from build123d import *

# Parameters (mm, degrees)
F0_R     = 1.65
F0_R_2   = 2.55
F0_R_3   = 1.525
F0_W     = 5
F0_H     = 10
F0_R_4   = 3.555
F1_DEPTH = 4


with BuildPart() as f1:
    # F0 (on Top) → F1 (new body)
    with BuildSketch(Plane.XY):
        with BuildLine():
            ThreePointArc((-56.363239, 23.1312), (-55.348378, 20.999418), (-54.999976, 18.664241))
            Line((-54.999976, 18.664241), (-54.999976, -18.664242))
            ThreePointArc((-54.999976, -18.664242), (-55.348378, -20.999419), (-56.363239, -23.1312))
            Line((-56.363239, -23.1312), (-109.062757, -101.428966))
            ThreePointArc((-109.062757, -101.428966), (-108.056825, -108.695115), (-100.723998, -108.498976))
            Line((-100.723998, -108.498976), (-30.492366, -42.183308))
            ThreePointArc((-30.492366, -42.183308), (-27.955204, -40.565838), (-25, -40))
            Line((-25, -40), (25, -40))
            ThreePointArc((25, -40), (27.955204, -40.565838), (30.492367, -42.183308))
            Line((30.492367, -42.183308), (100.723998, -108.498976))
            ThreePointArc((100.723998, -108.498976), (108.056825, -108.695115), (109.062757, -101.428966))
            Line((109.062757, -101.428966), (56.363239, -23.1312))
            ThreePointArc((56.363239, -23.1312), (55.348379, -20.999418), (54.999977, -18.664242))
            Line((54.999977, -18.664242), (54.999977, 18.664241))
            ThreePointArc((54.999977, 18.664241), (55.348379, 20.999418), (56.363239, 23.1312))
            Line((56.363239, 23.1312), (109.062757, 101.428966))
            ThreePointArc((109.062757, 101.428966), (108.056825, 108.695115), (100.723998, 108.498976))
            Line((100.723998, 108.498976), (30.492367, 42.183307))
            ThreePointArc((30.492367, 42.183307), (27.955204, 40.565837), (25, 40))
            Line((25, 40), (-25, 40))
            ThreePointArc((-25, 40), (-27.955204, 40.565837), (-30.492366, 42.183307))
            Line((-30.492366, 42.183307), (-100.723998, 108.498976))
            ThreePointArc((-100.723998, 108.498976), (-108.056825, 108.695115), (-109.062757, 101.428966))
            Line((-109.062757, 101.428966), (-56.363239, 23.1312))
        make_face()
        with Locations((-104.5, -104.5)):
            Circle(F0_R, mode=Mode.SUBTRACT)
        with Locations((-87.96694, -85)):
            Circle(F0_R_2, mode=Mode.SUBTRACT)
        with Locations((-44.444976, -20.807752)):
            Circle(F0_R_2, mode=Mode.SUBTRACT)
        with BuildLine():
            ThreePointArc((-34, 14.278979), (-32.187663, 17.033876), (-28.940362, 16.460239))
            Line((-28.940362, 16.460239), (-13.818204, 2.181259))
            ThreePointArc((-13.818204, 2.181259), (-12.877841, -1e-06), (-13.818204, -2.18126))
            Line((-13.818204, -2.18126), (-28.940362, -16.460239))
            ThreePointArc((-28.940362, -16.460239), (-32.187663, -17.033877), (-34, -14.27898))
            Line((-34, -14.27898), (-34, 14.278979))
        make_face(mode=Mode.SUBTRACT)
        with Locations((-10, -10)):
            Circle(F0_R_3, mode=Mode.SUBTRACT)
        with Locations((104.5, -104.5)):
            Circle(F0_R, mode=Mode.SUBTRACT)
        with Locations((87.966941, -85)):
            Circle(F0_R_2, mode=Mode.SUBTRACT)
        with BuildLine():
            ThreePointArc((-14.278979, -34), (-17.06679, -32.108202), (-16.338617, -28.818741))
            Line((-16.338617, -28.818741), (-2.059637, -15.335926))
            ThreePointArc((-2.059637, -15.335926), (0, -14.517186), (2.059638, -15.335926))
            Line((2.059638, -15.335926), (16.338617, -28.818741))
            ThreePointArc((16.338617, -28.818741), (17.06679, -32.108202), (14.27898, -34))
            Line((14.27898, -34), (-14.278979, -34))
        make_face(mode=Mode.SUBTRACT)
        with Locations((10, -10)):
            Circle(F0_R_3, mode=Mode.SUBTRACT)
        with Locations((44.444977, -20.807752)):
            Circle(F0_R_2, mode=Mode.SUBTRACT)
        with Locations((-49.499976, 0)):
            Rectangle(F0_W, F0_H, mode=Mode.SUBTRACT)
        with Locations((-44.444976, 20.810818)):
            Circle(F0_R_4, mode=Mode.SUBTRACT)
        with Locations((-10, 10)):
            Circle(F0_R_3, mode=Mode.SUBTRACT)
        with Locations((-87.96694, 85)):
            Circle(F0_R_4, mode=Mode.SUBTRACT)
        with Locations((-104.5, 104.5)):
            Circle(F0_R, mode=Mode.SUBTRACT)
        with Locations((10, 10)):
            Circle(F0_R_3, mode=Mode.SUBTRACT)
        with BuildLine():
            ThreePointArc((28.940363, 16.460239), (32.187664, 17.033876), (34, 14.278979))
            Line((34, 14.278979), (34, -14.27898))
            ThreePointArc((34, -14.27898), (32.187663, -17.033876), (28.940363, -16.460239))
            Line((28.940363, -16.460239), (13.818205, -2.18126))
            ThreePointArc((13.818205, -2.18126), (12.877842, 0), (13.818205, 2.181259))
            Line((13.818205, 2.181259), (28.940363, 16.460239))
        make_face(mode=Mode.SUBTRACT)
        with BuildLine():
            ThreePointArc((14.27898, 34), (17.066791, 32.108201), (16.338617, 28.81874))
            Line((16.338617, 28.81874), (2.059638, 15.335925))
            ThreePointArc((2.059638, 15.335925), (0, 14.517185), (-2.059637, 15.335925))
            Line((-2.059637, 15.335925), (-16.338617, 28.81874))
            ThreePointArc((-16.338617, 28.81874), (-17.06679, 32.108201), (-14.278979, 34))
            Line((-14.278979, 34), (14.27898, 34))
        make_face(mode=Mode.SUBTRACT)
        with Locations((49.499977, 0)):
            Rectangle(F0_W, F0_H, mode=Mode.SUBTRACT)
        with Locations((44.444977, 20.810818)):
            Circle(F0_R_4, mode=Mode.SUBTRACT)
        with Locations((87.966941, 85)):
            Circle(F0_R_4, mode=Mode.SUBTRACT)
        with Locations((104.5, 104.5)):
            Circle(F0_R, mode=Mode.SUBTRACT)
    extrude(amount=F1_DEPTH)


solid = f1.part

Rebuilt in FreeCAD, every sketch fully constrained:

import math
import FreeCAD as App
import Part
import Sketcher
from FreeCAD import Vector
Q = App.Units.Quantity

doc = App.newDocument("Part")
body = doc.addObject("PartDesign::Body", "Body")

# Sketch on XY plane
sketch1 = body.newObject("Sketcher::SketchObject", "Sketch")
sketch1.AttachmentSupport = (doc.getObject("XY_Plane"), [""])
sketch1.MapMode = "FlatFace"
sketch1.addGeometry(Part.ArcOfCircle(Part.Circle(Vector(-62.999972, 18.664242, 0), Vector(0, 0, 1), 7.999996), math.radians(-0.00001), math.radians(33.943147)), False)
sketch1.addGeometry(Part.LineSegment(Vector(-54.999976, 18.664241, 0), Vector(-54.999976, -18.664242, 0)), False)
sketch1.addGeometry(Part.ArcOfCircle(Part.Circle(Vector(-62.999965, -18.664244, 0), Vector(0, 0, 1), 7.999989), math.radians(-33.943161), math.radians(0.000017)), False)
sketch1.addGeometry(Part.LineSegment(Vector(-56.363239, -23.1312, 0), Vector(-109.062757, -101.428966, 0)), False)
sketch1.addGeometry(Part.ArcOfCircle(Part.Circle(Vector(-104.5, -104.499999, 0), Vector(0, 0, 1), 5.5), math.radians(146.056873), math.radians(313.357291)), False)
sketch1.addGeometry(Part.LineSegment(Vector(-100.723998, -108.498976, 0), Vector(-30.492366, -42.183308, 0)), False)
sketch1.addGeometry(Part.ArcOfCircle(Part.Circle(Vector(-24.999999, -47.999999, 0), Vector(0, 0, 1), 7.999999), math.radians(90.000005), math.radians(133.357304)), False)
sketch1.addGeometry(Part.LineSegment(Vector(-25, -40, 0), Vector(25, -40, 0)), False)
sketch1.addGeometry(Part.ArcOfCircle(Part.Circle(Vector(24.999998, -48.000004, 0), Vector(0, 0, 1), 8.000004), math.radians(46.64271), math.radians(89.999988)), False)
sketch1.addGeometry(Part.LineSegment(Vector(30.492367, -42.183308, 0), Vector(100.723998, -108.498976, 0)), False)
sketch1.addGeometry(Part.ArcOfCircle(Part.Circle(Vector(104.5, -104.499999, 0), Vector(0, 0, 1), 5.5), math.radians(-133.357291), math.radians(33.943127)), False)
sketch1.addGeometry(Part.LineSegment(Vector(109.062757, -101.428966, 0), Vector(56.363239, -23.1312, 0)), False)
sketch1.addGeometry(Part.ArcOfCircle(Part.Circle(Vector(62.999982, -18.664241, 0), Vector(0, 0, 1), 8.000005), math.radians(-179.999993), math.radians(-146.056886)), False)
sketch1.addGeometry(Part.LineSegment(Vector(54.999977, -18.664242, 0), Vector(54.999977, 18.664241, 0)), False)
sketch1.addGeometry(Part.ArcOfCircle(Part.Circle(Vector(62.999982, 18.664241, 0), Vector(0, 0, 1), 8.000005), math.radians(146.056886), math.radians(180)), False)
sketch1.addGeometry(Part.LineSegment(Vector(56.363239, 23.1312, 0), Vector(109.062757, 101.428966, 0)), False)
sketch1.addGeometry(Part.ArcOfCircle(Part.Circle(Vector(104.5, 104.499999, 0), Vector(0, 0, 1), 5.5), math.radians(-33.943127), math.radians(133.357291)), False)
sketch1.addGeometry(Part.LineSegment(Vector(100.723998, 108.498976, 0), Vector(30.492367, 42.183307, 0)), False)
sketch1.addGeometry(Part.ArcOfCircle(Part.Circle(Vector(25.000002, 47.999997, 0), Vector(0, 0, 1), 7.999997), math.radians(-90.000016), math.radians(-46.642701)), False)
sketch1.addGeometry(Part.LineSegment(Vector(25, 40, 0), Vector(-25, 40, 0)), False)
sketch1.addGeometry(Part.ArcOfCircle(Part.Circle(Vector(-25.000003, 47.999992, 0), Vector(0, 0, 1), 7.999992), math.radians(-133.357313), math.radians(-89.999977)), False)
sketch1.addGeometry(Part.LineSegment(Vector(-30.492366, 42.183307, 0), Vector(-100.723998, 108.498976, 0)), False)
sketch1.addGeometry(Part.ArcOfCircle(Part.Circle(Vector(-104.5, 104.499999, 0), Vector(0, 0, 1), 5.5), math.radians(46.642709), math.radians(213.943127)), False)
sketch1.addGeometry(Part.LineSegment(Vector(-109.062757, 101.428966, 0), Vector(-56.363239, 23.1312, 0)), False)
sketch1.addGeometry(Part.Circle(Vector(-104.5, -104.5, 0), Vector(0, 0, 1), 1.65), False)
sketch1.addGeometry(Part.Circle(Vector(-87.96694, -85, 0), Vector(0, 0, 1), 2.55), False)
sketch1.addGeometry(Part.Circle(Vector(-44.444976, -20.807752, 0), Vector(0, 0, 1), 2.55), False)
sketch1.addGeometry(Part.LineSegment(Vector(-34, -14.27898, 0), Vector(-34, 14.278979, 0)), False)
sketch1.addGeometry(Part.ArcOfCircle(Part.Circle(Vector(-31, 14.278979, 0), Vector(0, 0, 1), 3), math.radians(46.642707), math.radians(179.999998)), False)
sketch1.addGeometry(Part.LineSegment(Vector(-28.940362, 16.460239, 0), Vector(-13.818204, 2.181259, 0)), False)
sketch1.addGeometry(Part.ArcOfCircle(Part.Circle(Vector(-15.87784, 0, 0), Vector(0, 0, 1), 2.999999), math.radians(-46.642724), math.radians(46.642724)), False)
sketch1.addGeometry(Part.LineSegment(Vector(-13.818204, -2.18126, 0), Vector(-28.940362, -16.460239, 0)), False)
sketch1.addGeometry(Part.ArcOfCircle(Part.Circle(Vector(-31, -14.27898, 0), Vector(0, 0, 1), 3), math.radians(179.999995), math.radians(313.35732)), False)
sketch1.addGeometry(Part.Circle(Vector(-10, -10, 0), Vector(0, 0, 1), 1.525), False)
sketch1.addGeometry(Part.Circle(Vector(104.5, -104.5, 0), Vector(0, 0, 1), 1.65), False)
sketch1.addGeometry(Part.Circle(Vector(87.966941, -85, 0), Vector(0, 0, 1), 2.55), False)
sketch1.addGeometry(Part.LineSegment(Vector(14.27898, -34, 0), Vector(-14.278979, -34, 0)), False)
sketch1.addGeometry(Part.ArcOfCircle(Part.Circle(Vector(-14.278979, -31, 0), Vector(0, 0, 1), 3), math.radians(133.357304), math.radians(270.000009)), False)
sketch1.addGeometry(Part.LineSegment(Vector(-16.338617, -28.818741, 0), Vector(-2.059637, -15.335926, 0)), False)
sketch1.addGeometry(Part.ArcOfCircle(Part.Circle(Vector(0, -17.517187, 0), Vector(0, 0, 1), 3.000001), math.radians(46.64272), math.radians(133.35728)), False)
sketch1.addGeometry(Part.LineSegment(Vector(2.059638, -15.335926, 0), Vector(16.338617, -28.818741, 0)), False)
sketch1.addGeometry(Part.ArcOfCircle(Part.Circle(Vector(14.278979, -31, 0), Vector(0, 0, 1), 3), math.radians(-89.99999), math.radians(46.642696)), False)
sketch1.addGeometry(Part.Circle(Vector(10, -10, 0), Vector(0, 0, 1), 1.525), False)
sketch1.addGeometry(Part.Circle(Vector(44.444977, -20.807752, 0), Vector(0, 0, 1), 2.55), False)
sketch1.addGeometry(Part.LineSegment(Vector(-46.999976, -5, 0), Vector(-51.999976, -5, 0)), False)
sketch1.addGeometry(Part.LineSegment(Vector(-51.999976, -5, 0), Vector(-51.999976, 5, 0)), False)
sketch1.addGeometry(Part.LineSegment(Vector(-51.999976, 5, 0), Vector(-46.999976, 5, 0)), False)
sketch1.addGeometry(Part.LineSegment(Vector(-46.999976, 5, 0), Vector(-46.999976, -5, 0)), False)
sketch1.addGeometry(Part.Circle(Vector(-44.444976, 20.810818, 0), Vector(0, 0, 1), 3.555), False)
sketch1.addGeometry(Part.Circle(Vector(-10, 10, 0), Vector(0, 0, 1), 1.525), False)
sketch1.addGeometry(Part.Circle(Vector(-87.96694, 85, 0), Vector(0, 0, 1), 3.555), False)
sketch1.addGeometry(Part.Circle(Vector(-104.5, 104.5, 0), Vector(0, 0, 1), 1.65), False)
sketch1.addGeometry(Part.Circle(Vector(10, 10, 0), Vector(0, 0, 1), 1.525), False)
sketch1.addGeometry(Part.LineSegment(Vector(13.818205, 2.181259, 0), Vector(28.940363, 16.460239, 0)), False)
sketch1.addGeometry(Part.ArcOfCircle(Part.Circle(Vector(31, 14.27898, 0), Vector(0, 0, 1), 3), math.radians(-0.000016), math.radians(133.357304)), False)
sketch1.addGeometry(Part.LineSegment(Vector(34, 14.278979, 0), Vector(34, -14.27898, 0)), False)
sketch1.addGeometry(Part.ArcOfCircle(Part.Circle(Vector(31, -14.278979, 0), Vector(0, 0, 1), 3), math.radians(-133.357292), math.radians(-0.000014)), False)
sketch1.addGeometry(Part.LineSegment(Vector(28.940363, -16.460239, 0), Vector(13.818205, -2.18126, 0)), False)
sketch1.addGeometry(Part.ArcOfCircle(Part.Circle(Vector(15.877841, 0, 0), Vector(0, 0, 1), 2.999999), math.radians(133.357276), math.radians(226.642724)), False)
sketch1.addGeometry(Part.LineSegment(Vector(-14.278979, 34, 0), Vector(14.27898, 34, 0)), False)
sketch1.addGeometry(Part.ArcOfCircle(Part.Circle(Vector(14.27898, 31, 0), Vector(0, 0, 1), 3), math.radians(-46.642712), math.radians(89.999999)), False)
sketch1.addGeometry(Part.LineSegment(Vector(16.338617, 28.81874, 0), Vector(2.059638, 15.335925, 0)), False)
sketch1.addGeometry(Part.ArcOfCircle(Part.Circle(Vector(0, 17.517186, 0), Vector(0, 0, 1), 3.000001), math.radians(-133.35728), math.radians(-46.64272)), False)
sketch1.addGeometry(Part.LineSegment(Vector(-2.059637, 15.335925, 0), Vector(-16.338617, 28.81874, 0)), False)
sketch1.addGeometry(Part.ArcOfCircle(Part.Circle(Vector(-14.278979, 30.999999, 0), Vector(0, 0, 1), 3.000001), math.radians(90.000008), math.radians(226.642685)), False)
sketch1.addGeometry(Part.LineSegment(Vector(51.999977, -5, 0), Vector(46.999977, -5, 0)), False)
sketch1.addGeometry(Part.LineSegment(Vector(46.999977, -5, 0), Vector(46.999977, 5, 0)), False)
sketch1.addGeometry(Part.LineSegment(Vector(46.999977, 5, 0), Vector(51.999977, 5, 0)), False)
sketch1.addGeometry(Part.LineSegment(Vector(51.999977, 5, 0), Vector(51.999977, -5, 0)), False)
sketch1.addGeometry(Part.Circle(Vector(44.444977, 20.810818, 0), Vector(0, 0, 1), 3.555), False)
sketch1.addGeometry(Part.Circle(Vector(87.966941, 85, 0), Vector(0, 0, 1), 3.555), False)
sketch1.addGeometry(Part.Circle(Vector(104.5, 104.5, 0), Vector(0, 0, 1), 1.65), False)
sketch1.addConstraint(Sketcher.Constraint("Tangent", 0, 1, 1, 1))
sketch1.addConstraint(Sketcher.Constraint("Tangent", 1, 2, 2, 2))
sketch1.addConstraint(Sketcher.Constraint("Tangent", 2, 1, 3, 1))
sketch1.addConstraint(Sketcher.Constraint("Tangent", 3, 2, 4, 1))
sketch1.addConstraint(Sketcher.Constraint("Tangent", 4, 2, 5, 1))
sketch1.addConstraint(Sketcher.Constraint("Tangent", 5, 2, 6, 2))
sketch1.addConstraint(Sketcher.Constraint("Tangent", 6, 1, 7, 1))
sketch1.addConstraint(Sketcher.Constraint("Tangent", 7, 2, 8, 2))
sketch1.addConstraint(Sketcher.Constraint("Tangent", 8, 1, 9, 1))
sketch1.addConstraint(Sketcher.Constraint("Tangent", 9, 2, 10, 1))
sketch1.addConstraint(Sketcher.Constraint("Tangent", 10, 2, 11, 1))
sketch1.addConstraint(Sketcher.Constraint("Tangent", 11, 2, 12, 2))
sketch1.addConstraint(Sketcher.Constraint("Tangent", 12, 1, 13, 1))
sketch1.addConstraint(Sketcher.Constraint("Tangent", 13, 2, 14, 2))
sketch1.addConstraint(Sketcher.Constraint("Tangent", 14, 1, 15, 1))
sketch1.addConstraint(Sketcher.Constraint("Tangent", 15, 2, 16, 1))
sketch1.addConstraint(Sketcher.Constraint("Tangent", 16, 2, 17, 1))
sketch1.addConstraint(Sketcher.Constraint("Tangent", 17, 2, 18, 2))
sketch1.addConstraint(Sketcher.Constraint("Tangent", 18, 1, 19, 1))
sketch1.addConstraint(Sketcher.Constraint("Tangent", 19, 2, 20, 2))
sketch1.addConstraint(Sketcher.Constraint("Tangent", 20, 1, 21, 1))
sketch1.addConstraint(Sketcher.Constraint("Tangent", 21, 2, 22, 1))
sketch1.addConstraint(Sketcher.Constraint("Tangent", 22, 2, 23, 1))
sketch1.addConstraint(Sketcher.Constraint("Tangent", 23, 2, 0, 2))
sketch1.addConstraint(Sketcher.Constraint("Tangent", 27, 2, 28, 2))
sketch1.addConstraint(Sketcher.Constraint("Tangent", 28, 1, 29, 1))
sketch1.addConstraint(Sketcher.Constraint("Tangent", 29, 2, 30, 2))
sketch1.addConstraint(Sketcher.Constraint("Tangent", 30, 1, 31, 1))
sketch1.addConstraint(Sketcher.Constraint("Tangent", 31, 2, 32, 2))
sketch1.addConstraint(Sketcher.Constraint("Tangent", 32, 1, 27, 1))
sketch1.addConstraint(Sketcher.Constraint("Tangent", 36, 2, 37, 2))
sketch1.addConstraint(Sketcher.Constraint("Tangent", 37, 1, 38, 1))
sketch1.addConstraint(Sketcher.Constraint("Tangent", 38, 2, 39, 2))
sketch1.addConstraint(Sketcher.Constraint("Tangent", 39, 1, 40, 1))
sketch1.addConstraint(Sketcher.Constraint("Tangent", 40, 2, 41, 2))
sketch1.addConstraint(Sketcher.Constraint("Tangent", 41, 1, 36, 1))
sketch1.addConstraint(Sketcher.Constraint("Coincident", 44, 2, 45, 1))
sketch1.addConstraint(Sketcher.Constraint("Coincident", 45, 2, 46, 1))
sketch1.addConstraint(Sketcher.Constraint("Coincident", 46, 2, 47, 1))
sketch1.addConstraint(Sketcher.Constraint("Coincident", 47, 2, 44, 1))
sketch1.addConstraint(Sketcher.Constraint("Tangent", 53, 2, 54, 2))
sketch1.addConstraint(Sketcher.Constraint("Tangent", 54, 1, 55, 1))
sketch1.addConstraint(Sketcher.Constraint("Tangent", 55, 2, 56, 2))
sketch1.addConstraint(Sketcher.Constraint("Tangent", 56, 1, 57, 1))
sketch1.addConstraint(Sketcher.Constraint("Tangent", 57, 2, 58, 2))
sketch1.addConstraint(Sketcher.Constraint("Tangent", 58, 1, 53, 1))
sketch1.addConstraint(Sketcher.Constraint("Tangent", 59, 2, 60, 2))
sketch1.addConstraint(Sketcher.Constraint("Tangent", 60, 1, 61, 1))
sketch1.addConstraint(Sketcher.Constraint("Tangent", 61, 2, 62, 2))
sketch1.addConstraint(Sketcher.Constraint("Tangent", 62, 1, 63, 1))
sketch1.addConstraint(Sketcher.Constraint("Tangent", 63, 2, 64, 2))
sketch1.addConstraint(Sketcher.Constraint("Tangent", 64, 1, 59, 1))
sketch1.addConstraint(Sketcher.Constraint("Coincident", 65, 2, 66, 1))
sketch1.addConstraint(Sketcher.Constraint("Coincident", 66, 2, 67, 1))
sketch1.addConstraint(Sketcher.Constraint("Coincident", 67, 2, 68, 1))
sketch1.addConstraint(Sketcher.Constraint("Coincident", 68, 2, 65, 1))
sketch1.addConstraint(Sketcher.Constraint("Vertical", 1))
sketch1.addConstraint(Sketcher.Constraint("Horizontal", 7))
sketch1.addConstraint(Sketcher.Constraint("Vertical", 13))
sketch1.addConstraint(Sketcher.Constraint("Horizontal", 19))
sketch1.addConstraint(Sketcher.Constraint("Vertical", 27))
sketch1.addConstraint(Sketcher.Constraint("Horizontal", 36))
sketch1.addConstraint(Sketcher.Constraint("Horizontal", 44))
sketch1.addConstraint(Sketcher.Constraint("Vertical", 45))
sketch1.addConstraint(Sketcher.Constraint("Horizontal", 46))
sketch1.addConstraint(Sketcher.Constraint("Vertical", 47))
sketch1.addConstraint(Sketcher.Constraint("Vertical", 55))
sketch1.addConstraint(Sketcher.Constraint("Horizontal", 59))
sketch1.addConstraint(Sketcher.Constraint("Horizontal", 65))
sketch1.addConstraint(Sketcher.Constraint("Vertical", 66))
sketch1.addConstraint(Sketcher.Constraint("Horizontal", 67))
sketch1.addConstraint(Sketcher.Constraint("Vertical", 68))
sketch1.addConstraint(Sketcher.Constraint("Coincident", 24, 3, 4, 3))
sketch1.addConstraint(Sketcher.Constraint("Coincident", 34, 3, 10, 3))
sketch1.addConstraint(Sketcher.Constraint("Coincident", 51, 3, 22, 3))
sketch1.addConstraint(Sketcher.Constraint("Coincident", 71, 3, 16, 3))
sketch1.addConstraint(Sketcher.Constraint("Equal", 4, 10))
sketch1.addConstraint(Sketcher.Constraint("Equal", 8, 12))
sketch1.addConstraint(Sketcher.Constraint("Equal", 12, 14))
sketch1.addConstraint(Sketcher.Constraint("Equal", 10, 16))
sketch1.addConstraint(Sketcher.Constraint("Equal", 0, 18))
sketch1.addConstraint(Sketcher.Constraint("Equal", 16, 22))
sketch1.addConstraint(Sketcher.Constraint("Equal", 25, 26))
sketch1.addConstraint(Sketcher.Constraint("Equal", 28, 30))
sketch1.addConstraint(Sketcher.Constraint("Equal", 30, 32))
sketch1.addConstraint(Sketcher.Constraint("Equal", 24, 34))
sketch1.addConstraint(Sketcher.Constraint("Equal", 26, 35))
sketch1.addConstraint(Sketcher.Constraint("Equal", 32, 37))
sketch1.addConstraint(Sketcher.Constraint("Equal", 37, 39))
sketch1.addConstraint(Sketcher.Constraint("Equal", 39, 41))
sketch1.addConstraint(Sketcher.Constraint("Equal", 33, 42))
sketch1.addConstraint(Sketcher.Constraint("Equal", 35, 43))
sketch1.addConstraint(Sketcher.Constraint("Equal", 42, 49))
sketch1.addConstraint(Sketcher.Constraint("Equal", 48, 50))
sketch1.addConstraint(Sketcher.Constraint("Equal", 34, 51))
sketch1.addConstraint(Sketcher.Constraint("Equal", 49, 52))
sketch1.addConstraint(Sketcher.Constraint("Equal", 41, 54))
sketch1.addConstraint(Sketcher.Constraint("Equal", 54, 56))
sketch1.addConstraint(Sketcher.Constraint("Equal", 56, 58))
sketch1.addConstraint(Sketcher.Constraint("Equal", 58, 60))
sketch1.addConstraint(Sketcher.Constraint("Equal", 60, 62))
sketch1.addConstraint(Sketcher.Constraint("Equal", 62, 64))
sketch1.addConstraint(Sketcher.Constraint("Equal", 50, 69))
sketch1.addConstraint(Sketcher.Constraint("Equal", 69, 70))
sketch1.addConstraint(Sketcher.Constraint("Equal", 51, 71))
sketch1.addConstraint(Sketcher.Constraint("Symmetric", 4, 3, 16, 3, -1, 1))
sketch1.addConstraint(Sketcher.Constraint("Symmetric", 6, 3, 18, 3, -1, 1))
sketch1.addConstraint(Sketcher.Constraint("Symmetric", 10, 3, 22, 3, -1, 1))
sketch1.addConstraint(Sketcher.Constraint("Symmetric", 42, 3, 49, 3, -1, 1))
sketch1.addConstraint(Sketcher.Constraint("Symmetric", 35, 3, 50, 3, -1, 1))
sketch1.addConstraint(Sketcher.Constraint("Symmetric", 33, 3, 52, 3, -1, 1))
sketch1.addConstraint(Sketcher.Constraint("Symmetric", 32, 3, 54, 3, -1, 1))
sketch1.addConstraint(Sketcher.Constraint("Symmetric", 30, 3, 58, 3, -1, 1))
sketch1.addConstraint(Sketcher.Constraint("Symmetric", 37, 3, 60, 3, -1, 1))
sketch1.addConstraint(Sketcher.Constraint("Symmetric", 39, 3, 62, 3, -1, 1))
sketch1.addConstraint(Sketcher.Constraint("Symmetric", 25, 3, 70, 3, -1, 1))
sketch1.addConstraint(Sketcher.Constraint("Symmetric", 0, 1, 12, 1, -1, 1))
sketch1.addConstraint(Sketcher.Constraint("Symmetric", 2, 1, 14, 1, -1, 1))
sketch1.addConstraint(Sketcher.Constraint("Symmetric", 7, 2, 19, 2, -1, 1))
sketch1.addConstraint(Sketcher.Constraint("Symmetric", 46, 2, 65, 2, -1, 1))
sketch1.addConstraint(Sketcher.Constraint("Symmetric", 44, 2, 67, 2, -1, 1))
sketch1.addConstraint(Sketcher.Constraint("Symmetric", 6, 3, 8, 3, -2))
sketch1.addConstraint(Sketcher.Constraint("Symmetric", 4, 3, 10, 3, -2))
sketch1.addConstraint(Sketcher.Constraint("Symmetric", 25, 3, 35, 3, -2))
sketch1.addConstraint(Sketcher.Constraint("Symmetric", 33, 3, 42, 3, -2))
sketch1.addConstraint(Sketcher.Constraint("Symmetric", 26, 3, 43, 3, -2))
sketch1.addConstraint(Sketcher.Constraint("Symmetric", 48, 3, 69, 3, -2))
sketch1.addConstraint(Sketcher.Constraint("Symmetric", 38, 2, 39, 1, -2))
sketch1.addConstraint(Sketcher.Constraint("Symmetric", 28, 1, 53, 2, -2))
sketch1.addConstraint(Sketcher.Constraint("Parallel", 9, 21))
sketch1.addConstraint(Sketcher.Constraint("Parallel", 21, 29))
sketch1.addConstraint(Sketcher.Constraint("Parallel", 31, 38))
sketch1.addConstraint(Sketcher.Constraint("Parallel", 40, 57))
sketch1.addConstraint(Sketcher.Constraint("Parallel", 57, 63))
sketch1.addConstraint(Sketcher.Constraint("Horizontal", 0, 3, 14, 3))
sketch1.addConstraint(Sketcher.Constraint("Horizontal", 47, 2, 65, 2))
sketch1.addConstraint(Sketcher.Constraint("Vertical", 26, 3, 48, 3))
sketch1.addConstraint(Sketcher.Constraint("Equal", 59, 27))
sketch1.addConstraint(Sketcher.Constraint("Radius", 6, Q("7.999999 mm")))
sketch1.addConstraint(Sketcher.Constraint("Radius", 28, Q("3 mm")))
sketch1.addConstraint(Sketcher.Constraint("Diameter", 24, Q("3.3 mm")))
sketch1.addConstraint(Sketcher.Constraint("Diameter", 25, Q("5.1 mm")))
sketch1.addConstraint(Sketcher.Constraint("Radius", 4, Q("5.5 mm")))
sketch1.addConstraint(Sketcher.Constraint("Diameter", 33, Q("3.05 mm")))
sketch1.addConstraint(Sketcher.Constraint("Diameter", 48, Q("7.11 mm")))
sketch1.addConstraint(Sketcher.Constraint("DistanceX", 7, 1, 7, 2, Q("50 mm")))
sketch1.addConstraint(Sketcher.Constraint("DistanceX", 44, 2, 44, 1, Q("5 mm")))
sketch1.addConstraint(Sketcher.Constraint("DistanceY", 45, 1, 45, 2, Q("10 mm")))
sketch1.addConstraint(Sketcher.Constraint("DistanceY", 6, 3, -1, 1, Q("47.999999 mm")))
sketch1.addConstraint(Sketcher.Constraint("DistanceY", 25, 3, -1, 1, Q("85 mm")))
sketch1.addConstraint(Sketcher.Constraint("DistanceX", 28, 3, -1, 1, Q("31 mm")))
sketch1.addConstraint(Sketcher.Constraint("DistanceX", 33, 3, -1, 1, Q("10 mm")))
sketch1.addConstraint(Sketcher.Constraint("DistanceY", 33, 3, -1, 1, Q("10 mm")))
sketch1.addConstraint(Sketcher.Constraint("DistanceY", 37, 3, -1, 1, Q("31 mm")))
sketch1.addConstraint(Sketcher.Constraint("DistanceX", 4, 3, -1, 1, Q("104.5 mm")))
sketch1.addConstraint(Sketcher.Constraint("DistanceY", 4, 3, -1, 1, Q("104.499999 mm")))
sketch1.addConstraint(Sketcher.Constraint("DistanceX", 36, 2, 36, 1, Q("28.557959 mm")))
sketch1.addConstraint(Sketcher.Constraint("DistanceY", 2, 1, -1, 1, Q("23.1312 mm")))
sketch1.addConstraint(Sketcher.Constraint("DistanceY", 1, 2, 1, 1, Q("37.328483 mm")))
sketch1.addConstraint(Sketcher.Constraint("DistanceX", 25, 3, -1, 1, Q("87.96694 mm")))
sketch1.addConstraint(Sketcher.Constraint("DistanceY", -1, 1, 48, 3, Q("20.810818 mm")))
sketch1.addConstraint(Sketcher.Constraint("DistanceX", 26, 3, -1, 1, Q("44.444976 mm")))
sketch1.addConstraint(Sketcher.Constraint("DistanceY", 26, 3, -1, 1, Q("20.807752 mm")))
sketch1.addConstraint(Sketcher.Constraint("DistanceX", 44, 2, -1, 1, Q("51.999976 mm")))
pad1 = body.newObject("PartDesign::Pad", "Pad")
pad1.Profile = sketch1
pad1.Length = 4

doc.recompute()
